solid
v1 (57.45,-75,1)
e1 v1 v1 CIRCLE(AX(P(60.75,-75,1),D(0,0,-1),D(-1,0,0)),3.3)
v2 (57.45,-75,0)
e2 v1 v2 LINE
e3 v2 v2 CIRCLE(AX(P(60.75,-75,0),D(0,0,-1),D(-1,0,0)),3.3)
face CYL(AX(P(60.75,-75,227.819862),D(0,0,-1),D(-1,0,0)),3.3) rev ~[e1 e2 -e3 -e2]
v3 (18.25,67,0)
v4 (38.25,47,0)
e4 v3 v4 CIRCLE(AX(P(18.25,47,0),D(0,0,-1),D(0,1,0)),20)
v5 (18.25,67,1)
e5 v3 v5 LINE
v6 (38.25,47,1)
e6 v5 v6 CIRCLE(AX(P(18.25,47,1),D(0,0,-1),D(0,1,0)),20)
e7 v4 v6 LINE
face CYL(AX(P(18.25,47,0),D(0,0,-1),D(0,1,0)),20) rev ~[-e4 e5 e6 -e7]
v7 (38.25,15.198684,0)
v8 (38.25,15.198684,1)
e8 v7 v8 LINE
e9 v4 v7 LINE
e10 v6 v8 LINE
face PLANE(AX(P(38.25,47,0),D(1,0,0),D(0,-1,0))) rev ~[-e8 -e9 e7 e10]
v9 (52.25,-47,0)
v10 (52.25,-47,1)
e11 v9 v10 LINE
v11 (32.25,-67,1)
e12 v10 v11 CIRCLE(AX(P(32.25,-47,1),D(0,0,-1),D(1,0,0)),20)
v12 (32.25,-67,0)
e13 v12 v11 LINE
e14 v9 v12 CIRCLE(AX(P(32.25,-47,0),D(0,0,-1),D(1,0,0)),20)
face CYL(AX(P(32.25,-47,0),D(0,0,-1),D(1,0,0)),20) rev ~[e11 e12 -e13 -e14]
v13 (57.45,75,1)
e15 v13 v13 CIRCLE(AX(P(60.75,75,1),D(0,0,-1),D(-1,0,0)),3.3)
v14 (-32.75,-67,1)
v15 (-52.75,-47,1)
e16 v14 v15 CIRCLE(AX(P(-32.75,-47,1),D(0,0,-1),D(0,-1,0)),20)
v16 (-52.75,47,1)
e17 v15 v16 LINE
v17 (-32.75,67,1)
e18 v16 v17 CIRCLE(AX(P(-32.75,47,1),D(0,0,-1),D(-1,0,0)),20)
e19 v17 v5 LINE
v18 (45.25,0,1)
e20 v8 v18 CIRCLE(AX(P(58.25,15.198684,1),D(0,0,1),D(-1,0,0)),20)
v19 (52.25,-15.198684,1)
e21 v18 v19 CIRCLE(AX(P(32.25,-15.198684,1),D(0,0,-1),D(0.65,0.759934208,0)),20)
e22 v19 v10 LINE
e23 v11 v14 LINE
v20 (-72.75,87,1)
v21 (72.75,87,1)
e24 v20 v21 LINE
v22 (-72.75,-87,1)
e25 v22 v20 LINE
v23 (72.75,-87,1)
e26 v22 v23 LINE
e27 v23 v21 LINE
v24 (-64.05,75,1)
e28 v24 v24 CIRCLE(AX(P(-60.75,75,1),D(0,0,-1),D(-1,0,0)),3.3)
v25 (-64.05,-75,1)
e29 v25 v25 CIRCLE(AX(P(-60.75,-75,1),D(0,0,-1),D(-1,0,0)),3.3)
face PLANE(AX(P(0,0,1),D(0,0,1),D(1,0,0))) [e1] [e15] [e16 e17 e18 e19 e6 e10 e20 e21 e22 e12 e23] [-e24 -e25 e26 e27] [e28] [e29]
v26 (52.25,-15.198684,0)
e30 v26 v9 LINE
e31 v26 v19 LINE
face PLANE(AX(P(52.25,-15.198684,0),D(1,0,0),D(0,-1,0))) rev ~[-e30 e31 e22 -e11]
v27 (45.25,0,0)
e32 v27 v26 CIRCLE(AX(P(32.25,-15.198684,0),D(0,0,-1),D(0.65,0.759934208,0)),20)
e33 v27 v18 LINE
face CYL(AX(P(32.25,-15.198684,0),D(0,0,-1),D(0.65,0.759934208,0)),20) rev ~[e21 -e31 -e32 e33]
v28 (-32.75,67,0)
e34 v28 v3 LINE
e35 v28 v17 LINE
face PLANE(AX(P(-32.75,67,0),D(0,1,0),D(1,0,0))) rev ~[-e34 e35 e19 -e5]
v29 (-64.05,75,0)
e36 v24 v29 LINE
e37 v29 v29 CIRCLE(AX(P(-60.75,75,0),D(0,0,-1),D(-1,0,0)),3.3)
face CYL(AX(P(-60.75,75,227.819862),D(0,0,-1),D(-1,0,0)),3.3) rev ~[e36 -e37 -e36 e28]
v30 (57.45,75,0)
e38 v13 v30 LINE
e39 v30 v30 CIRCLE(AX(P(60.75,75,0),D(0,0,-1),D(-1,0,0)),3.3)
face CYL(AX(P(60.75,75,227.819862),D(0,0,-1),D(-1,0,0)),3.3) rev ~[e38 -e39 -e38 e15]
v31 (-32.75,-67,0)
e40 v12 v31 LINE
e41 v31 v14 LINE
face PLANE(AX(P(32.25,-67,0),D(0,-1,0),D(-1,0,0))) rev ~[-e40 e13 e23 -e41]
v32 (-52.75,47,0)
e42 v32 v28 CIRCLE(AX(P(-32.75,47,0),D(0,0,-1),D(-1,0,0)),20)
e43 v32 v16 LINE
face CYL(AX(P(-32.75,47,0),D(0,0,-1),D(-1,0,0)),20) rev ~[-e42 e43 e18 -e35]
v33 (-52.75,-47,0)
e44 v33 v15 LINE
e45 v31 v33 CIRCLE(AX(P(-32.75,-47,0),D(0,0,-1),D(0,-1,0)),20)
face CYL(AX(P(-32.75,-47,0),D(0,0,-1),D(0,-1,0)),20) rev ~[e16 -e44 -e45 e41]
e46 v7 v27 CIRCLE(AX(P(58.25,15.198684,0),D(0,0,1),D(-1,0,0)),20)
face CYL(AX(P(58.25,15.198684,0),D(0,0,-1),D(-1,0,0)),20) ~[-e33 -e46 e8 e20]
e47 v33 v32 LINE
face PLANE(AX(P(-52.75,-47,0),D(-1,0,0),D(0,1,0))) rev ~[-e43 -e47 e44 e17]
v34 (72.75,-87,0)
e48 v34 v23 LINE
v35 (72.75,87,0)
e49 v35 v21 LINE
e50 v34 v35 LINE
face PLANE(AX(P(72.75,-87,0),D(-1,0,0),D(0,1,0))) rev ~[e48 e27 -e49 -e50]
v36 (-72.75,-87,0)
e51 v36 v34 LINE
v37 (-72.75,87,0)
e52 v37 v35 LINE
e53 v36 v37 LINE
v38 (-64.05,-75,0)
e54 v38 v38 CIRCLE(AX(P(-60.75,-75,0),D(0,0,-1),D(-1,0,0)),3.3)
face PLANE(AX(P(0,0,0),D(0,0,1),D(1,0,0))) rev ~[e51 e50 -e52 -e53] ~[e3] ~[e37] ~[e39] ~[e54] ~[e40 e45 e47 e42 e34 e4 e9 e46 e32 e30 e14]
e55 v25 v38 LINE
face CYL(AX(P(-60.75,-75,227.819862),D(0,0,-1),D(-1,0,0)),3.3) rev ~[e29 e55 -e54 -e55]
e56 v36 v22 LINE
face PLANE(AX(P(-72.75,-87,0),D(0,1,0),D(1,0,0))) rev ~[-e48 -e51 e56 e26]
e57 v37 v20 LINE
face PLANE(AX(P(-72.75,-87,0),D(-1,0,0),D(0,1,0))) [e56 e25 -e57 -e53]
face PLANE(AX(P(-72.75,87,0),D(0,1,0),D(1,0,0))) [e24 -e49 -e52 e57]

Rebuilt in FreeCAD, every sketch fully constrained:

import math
import FreeCAD as App
import Part
import Sketcher

V = App.Vector

doc = App.newDocument("Part")
body = doc.addObject("PartDesign::Body", "Body")

# Sketch on XY plane
sketch1 = body.newObject("Sketcher::SketchObject", "Sketch")
sketch1.AttachmentSupport = (doc.getObject("XY_Plane"), [""])
sketch1.MapMode = "FlatFace"
sketch1.addGeometry([
    Part.LineSegment(V(-73, 87, 0), V(-73, -87, 0)),  # 0
    Part.LineSegment(V(-73, -87, 0), V(73, -87, 0)),  # 1
    Part.LineSegment(V(73, -87, 0), V(73, 87, 0)),  # 2
    Part.LineSegment(V(73, 87, 0), V(-73, 87, 0)),  # 3
    Part.ArcOfCircle(Part.Circle(V(-33, -47, 0), V(0, 0, 1), 20), math.radians(180), math.radians(270)),  # 4
    Part.LineSegment(V(-53, -47, 0), V(-53, 47, 0)),  # 5
    Part.ArcOfCircle(Part.Circle(V(-33, 47, 0), V(0, 0, 1), 20), math.radians(90), math.radians(180)),  # 6
    Part.LineSegment(V(-33, 67, 0), V(18, 67, 0)),  # 7
    Part.ArcOfCircle(Part.Circle(V(18, 47, 0), V(0, 0, 1), 20), math.radians(0), math.radians(90)),  # 8
    Part.LineSegment(V(38, 47, 0), V(38, 15, 0)),  # 9
    Part.ArcOfCircle(Part.Circle(V(58, 15, 0), V(0, 0, 1), 20), math.radians(180), math.radians(229)),  # 10
    Part.ArcOfCircle(Part.Circle(V(32, -15, 0), V(0, 0, 1), 20), math.radians(0), math.radians(49)),  # 11
    Part.LineSegment(V(52, -15, 0), V(52, -47, 0)),  # 12
    Part.ArcOfCircle(Part.Circle(V(32, -47, 0), V(0, 0, 1), 20), math.radians(-90), math.radians(0)),  # 13
    Part.LineSegment(V(32, -67, 0), V(-33, -67, 0)),  # 14
], False)
sketch1.addConstraint([
    Sketcher.Constraint("Coincident", 0, 2, 1, 1),
    Sketcher.Constraint("Coincident", 1, 2, 2, 1),
    Sketcher.Constraint("Coincident", 2, 2, 3, 1),
    Sketcher.Constraint("Coincident", 3, 2, 0, 1),
    Sketcher.Constraint("Tangent", 4, 1, 5, 1),
    Sketcher.Constraint("Tangent", 5, 2, 6, 2),
    Sketcher.Constraint("Tangent", 6, 1, 7, 1),
    Sketcher.Constraint("Tangent", 7, 2, 8, 2),
    Sketcher.Constraint("Tangent", 8, 1, 9, 1),
    Sketcher.Constraint("Tangent", 9, 2, 10, 1),
    Sketcher.Constraint("Tangent", 10, 2, 11, 2),
    Sketcher.Constraint("Tangent", 11, 1, 12, 1),
    Sketcher.Constraint("Tangent", 12, 2, 13, 2),
    Sketcher.Constraint("Tangent", 13, 1, 14, 1),
    Sketcher.Constraint("Tangent", 14, 2, 4, 2),
    Sketcher.Constraint("Vertical", 0),
    Sketcher.Constraint("Horizontal", 1),
    Sketcher.Constraint("Vertical", 2),
    Sketcher.Constraint("Horizontal", 3),
    Sketcher.Constraint("Vertical", 5),
    Sketcher.Constraint("Horizontal", 7),
    Sketcher.Constraint("Vertical", 9),
    Sketcher.Constraint("Vertical", 12),
    Sketcher.Constraint("Horizontal", 14),
    Sketcher.Constraint("Equal", 4, 6),
    Sketcher.Constraint("Equal", 6, 8),
    Sketcher.Constraint("Equal", 8, 10),
    Sketcher.Constraint("Equal", 10, 11),
    Sketcher.Constraint("Equal", 11, 13),
    Sketcher.Constraint("Symmetric", 0, 2, 2, 2, -1, 1),
    Sketcher.Constraint("PointOnObject", 10, 2, -1),
    Sketcher.Constraint("Equal", 9, 12),
    Sketcher.Constraint("Radius", 4, 20.0),
    Sketcher.Constraint("DistanceX", 7, 1, 7, 2, 51.0),
    Sketcher.Constraint("DistanceX", 14, 2, 14, 1, 65.0),
    Sketcher.Constraint("DistanceY", 0, 2, 0, 1, 174.0),
    Sketcher.Constraint("DistanceY", 5, 1, 5, 2, 94.0),
    Sketcher.Constraint("DistanceX", 1, 1, 1, 2, 145.5),
    Sketcher.Constraint("DistanceX", 0, 2, 4, 3, 40.0),
])
pad1 = body.newObject("PartDesign::Pad", "Pad")
pad1.Profile = sketch1
pad1.Length = 1

# Sketch on XY plane
sketch2 = body.newObject("Sketcher::SketchObject", "Sketch001")
sketch2.AttachmentSupport = (doc.getObject("XY_Plane"), [""])
sketch2.MapMode = "FlatFace"
sketch2.AttachmentOffset = App.Placement(V(0, 0, 1), App.Rotation())
sketch2.addGeometry([
    Part.Circle(V(-60.8, 75, 0), V(0, 0, 1), 3.3),
    Part.Circle(V(60.8, 75, 0), V(0, 0, 1), 3.3),
    Part.Circle(V(60.8, -75, 0), V(0, 0, 1), 3.3),
    Part.Circle(V(-60.8, -75, 0), V(0, 0, 1), 3.3),
], False)
sketch2.addConstraint([
    Sketcher.Constraint("Equal", 0, 1),
    Sketcher.Constraint("Equal", 1, 2),
    Sketcher.Constraint("Equal", 2, 3),
    Sketcher.Constraint("Symmetric", 0, 3, 2, 3, -1, 1),
    Sketcher.Constraint("Symmetric", 1, 3, 3, 3, -1, 1),
    Sketcher.Constraint("Symmetric", 0, 3, 1, 3, -2),
    Sketcher.Constraint("Diameter", 0, 6.6),
    Sketcher.Constraint("DistanceY", -1, 1, 0, 3, 75.0),
    Sketcher.Constraint("DistanceX", 0, 3, 1, 3, 121.5),
])
doc.recompute()
hole = body.newObject("PartDesign::Hole", "Hole")
hole.Profile = sketch2
hole.ThreadType = "None"
hole.Diameter = 6.6
hole.DepthType = "ThroughAll"

doc.recompute()
